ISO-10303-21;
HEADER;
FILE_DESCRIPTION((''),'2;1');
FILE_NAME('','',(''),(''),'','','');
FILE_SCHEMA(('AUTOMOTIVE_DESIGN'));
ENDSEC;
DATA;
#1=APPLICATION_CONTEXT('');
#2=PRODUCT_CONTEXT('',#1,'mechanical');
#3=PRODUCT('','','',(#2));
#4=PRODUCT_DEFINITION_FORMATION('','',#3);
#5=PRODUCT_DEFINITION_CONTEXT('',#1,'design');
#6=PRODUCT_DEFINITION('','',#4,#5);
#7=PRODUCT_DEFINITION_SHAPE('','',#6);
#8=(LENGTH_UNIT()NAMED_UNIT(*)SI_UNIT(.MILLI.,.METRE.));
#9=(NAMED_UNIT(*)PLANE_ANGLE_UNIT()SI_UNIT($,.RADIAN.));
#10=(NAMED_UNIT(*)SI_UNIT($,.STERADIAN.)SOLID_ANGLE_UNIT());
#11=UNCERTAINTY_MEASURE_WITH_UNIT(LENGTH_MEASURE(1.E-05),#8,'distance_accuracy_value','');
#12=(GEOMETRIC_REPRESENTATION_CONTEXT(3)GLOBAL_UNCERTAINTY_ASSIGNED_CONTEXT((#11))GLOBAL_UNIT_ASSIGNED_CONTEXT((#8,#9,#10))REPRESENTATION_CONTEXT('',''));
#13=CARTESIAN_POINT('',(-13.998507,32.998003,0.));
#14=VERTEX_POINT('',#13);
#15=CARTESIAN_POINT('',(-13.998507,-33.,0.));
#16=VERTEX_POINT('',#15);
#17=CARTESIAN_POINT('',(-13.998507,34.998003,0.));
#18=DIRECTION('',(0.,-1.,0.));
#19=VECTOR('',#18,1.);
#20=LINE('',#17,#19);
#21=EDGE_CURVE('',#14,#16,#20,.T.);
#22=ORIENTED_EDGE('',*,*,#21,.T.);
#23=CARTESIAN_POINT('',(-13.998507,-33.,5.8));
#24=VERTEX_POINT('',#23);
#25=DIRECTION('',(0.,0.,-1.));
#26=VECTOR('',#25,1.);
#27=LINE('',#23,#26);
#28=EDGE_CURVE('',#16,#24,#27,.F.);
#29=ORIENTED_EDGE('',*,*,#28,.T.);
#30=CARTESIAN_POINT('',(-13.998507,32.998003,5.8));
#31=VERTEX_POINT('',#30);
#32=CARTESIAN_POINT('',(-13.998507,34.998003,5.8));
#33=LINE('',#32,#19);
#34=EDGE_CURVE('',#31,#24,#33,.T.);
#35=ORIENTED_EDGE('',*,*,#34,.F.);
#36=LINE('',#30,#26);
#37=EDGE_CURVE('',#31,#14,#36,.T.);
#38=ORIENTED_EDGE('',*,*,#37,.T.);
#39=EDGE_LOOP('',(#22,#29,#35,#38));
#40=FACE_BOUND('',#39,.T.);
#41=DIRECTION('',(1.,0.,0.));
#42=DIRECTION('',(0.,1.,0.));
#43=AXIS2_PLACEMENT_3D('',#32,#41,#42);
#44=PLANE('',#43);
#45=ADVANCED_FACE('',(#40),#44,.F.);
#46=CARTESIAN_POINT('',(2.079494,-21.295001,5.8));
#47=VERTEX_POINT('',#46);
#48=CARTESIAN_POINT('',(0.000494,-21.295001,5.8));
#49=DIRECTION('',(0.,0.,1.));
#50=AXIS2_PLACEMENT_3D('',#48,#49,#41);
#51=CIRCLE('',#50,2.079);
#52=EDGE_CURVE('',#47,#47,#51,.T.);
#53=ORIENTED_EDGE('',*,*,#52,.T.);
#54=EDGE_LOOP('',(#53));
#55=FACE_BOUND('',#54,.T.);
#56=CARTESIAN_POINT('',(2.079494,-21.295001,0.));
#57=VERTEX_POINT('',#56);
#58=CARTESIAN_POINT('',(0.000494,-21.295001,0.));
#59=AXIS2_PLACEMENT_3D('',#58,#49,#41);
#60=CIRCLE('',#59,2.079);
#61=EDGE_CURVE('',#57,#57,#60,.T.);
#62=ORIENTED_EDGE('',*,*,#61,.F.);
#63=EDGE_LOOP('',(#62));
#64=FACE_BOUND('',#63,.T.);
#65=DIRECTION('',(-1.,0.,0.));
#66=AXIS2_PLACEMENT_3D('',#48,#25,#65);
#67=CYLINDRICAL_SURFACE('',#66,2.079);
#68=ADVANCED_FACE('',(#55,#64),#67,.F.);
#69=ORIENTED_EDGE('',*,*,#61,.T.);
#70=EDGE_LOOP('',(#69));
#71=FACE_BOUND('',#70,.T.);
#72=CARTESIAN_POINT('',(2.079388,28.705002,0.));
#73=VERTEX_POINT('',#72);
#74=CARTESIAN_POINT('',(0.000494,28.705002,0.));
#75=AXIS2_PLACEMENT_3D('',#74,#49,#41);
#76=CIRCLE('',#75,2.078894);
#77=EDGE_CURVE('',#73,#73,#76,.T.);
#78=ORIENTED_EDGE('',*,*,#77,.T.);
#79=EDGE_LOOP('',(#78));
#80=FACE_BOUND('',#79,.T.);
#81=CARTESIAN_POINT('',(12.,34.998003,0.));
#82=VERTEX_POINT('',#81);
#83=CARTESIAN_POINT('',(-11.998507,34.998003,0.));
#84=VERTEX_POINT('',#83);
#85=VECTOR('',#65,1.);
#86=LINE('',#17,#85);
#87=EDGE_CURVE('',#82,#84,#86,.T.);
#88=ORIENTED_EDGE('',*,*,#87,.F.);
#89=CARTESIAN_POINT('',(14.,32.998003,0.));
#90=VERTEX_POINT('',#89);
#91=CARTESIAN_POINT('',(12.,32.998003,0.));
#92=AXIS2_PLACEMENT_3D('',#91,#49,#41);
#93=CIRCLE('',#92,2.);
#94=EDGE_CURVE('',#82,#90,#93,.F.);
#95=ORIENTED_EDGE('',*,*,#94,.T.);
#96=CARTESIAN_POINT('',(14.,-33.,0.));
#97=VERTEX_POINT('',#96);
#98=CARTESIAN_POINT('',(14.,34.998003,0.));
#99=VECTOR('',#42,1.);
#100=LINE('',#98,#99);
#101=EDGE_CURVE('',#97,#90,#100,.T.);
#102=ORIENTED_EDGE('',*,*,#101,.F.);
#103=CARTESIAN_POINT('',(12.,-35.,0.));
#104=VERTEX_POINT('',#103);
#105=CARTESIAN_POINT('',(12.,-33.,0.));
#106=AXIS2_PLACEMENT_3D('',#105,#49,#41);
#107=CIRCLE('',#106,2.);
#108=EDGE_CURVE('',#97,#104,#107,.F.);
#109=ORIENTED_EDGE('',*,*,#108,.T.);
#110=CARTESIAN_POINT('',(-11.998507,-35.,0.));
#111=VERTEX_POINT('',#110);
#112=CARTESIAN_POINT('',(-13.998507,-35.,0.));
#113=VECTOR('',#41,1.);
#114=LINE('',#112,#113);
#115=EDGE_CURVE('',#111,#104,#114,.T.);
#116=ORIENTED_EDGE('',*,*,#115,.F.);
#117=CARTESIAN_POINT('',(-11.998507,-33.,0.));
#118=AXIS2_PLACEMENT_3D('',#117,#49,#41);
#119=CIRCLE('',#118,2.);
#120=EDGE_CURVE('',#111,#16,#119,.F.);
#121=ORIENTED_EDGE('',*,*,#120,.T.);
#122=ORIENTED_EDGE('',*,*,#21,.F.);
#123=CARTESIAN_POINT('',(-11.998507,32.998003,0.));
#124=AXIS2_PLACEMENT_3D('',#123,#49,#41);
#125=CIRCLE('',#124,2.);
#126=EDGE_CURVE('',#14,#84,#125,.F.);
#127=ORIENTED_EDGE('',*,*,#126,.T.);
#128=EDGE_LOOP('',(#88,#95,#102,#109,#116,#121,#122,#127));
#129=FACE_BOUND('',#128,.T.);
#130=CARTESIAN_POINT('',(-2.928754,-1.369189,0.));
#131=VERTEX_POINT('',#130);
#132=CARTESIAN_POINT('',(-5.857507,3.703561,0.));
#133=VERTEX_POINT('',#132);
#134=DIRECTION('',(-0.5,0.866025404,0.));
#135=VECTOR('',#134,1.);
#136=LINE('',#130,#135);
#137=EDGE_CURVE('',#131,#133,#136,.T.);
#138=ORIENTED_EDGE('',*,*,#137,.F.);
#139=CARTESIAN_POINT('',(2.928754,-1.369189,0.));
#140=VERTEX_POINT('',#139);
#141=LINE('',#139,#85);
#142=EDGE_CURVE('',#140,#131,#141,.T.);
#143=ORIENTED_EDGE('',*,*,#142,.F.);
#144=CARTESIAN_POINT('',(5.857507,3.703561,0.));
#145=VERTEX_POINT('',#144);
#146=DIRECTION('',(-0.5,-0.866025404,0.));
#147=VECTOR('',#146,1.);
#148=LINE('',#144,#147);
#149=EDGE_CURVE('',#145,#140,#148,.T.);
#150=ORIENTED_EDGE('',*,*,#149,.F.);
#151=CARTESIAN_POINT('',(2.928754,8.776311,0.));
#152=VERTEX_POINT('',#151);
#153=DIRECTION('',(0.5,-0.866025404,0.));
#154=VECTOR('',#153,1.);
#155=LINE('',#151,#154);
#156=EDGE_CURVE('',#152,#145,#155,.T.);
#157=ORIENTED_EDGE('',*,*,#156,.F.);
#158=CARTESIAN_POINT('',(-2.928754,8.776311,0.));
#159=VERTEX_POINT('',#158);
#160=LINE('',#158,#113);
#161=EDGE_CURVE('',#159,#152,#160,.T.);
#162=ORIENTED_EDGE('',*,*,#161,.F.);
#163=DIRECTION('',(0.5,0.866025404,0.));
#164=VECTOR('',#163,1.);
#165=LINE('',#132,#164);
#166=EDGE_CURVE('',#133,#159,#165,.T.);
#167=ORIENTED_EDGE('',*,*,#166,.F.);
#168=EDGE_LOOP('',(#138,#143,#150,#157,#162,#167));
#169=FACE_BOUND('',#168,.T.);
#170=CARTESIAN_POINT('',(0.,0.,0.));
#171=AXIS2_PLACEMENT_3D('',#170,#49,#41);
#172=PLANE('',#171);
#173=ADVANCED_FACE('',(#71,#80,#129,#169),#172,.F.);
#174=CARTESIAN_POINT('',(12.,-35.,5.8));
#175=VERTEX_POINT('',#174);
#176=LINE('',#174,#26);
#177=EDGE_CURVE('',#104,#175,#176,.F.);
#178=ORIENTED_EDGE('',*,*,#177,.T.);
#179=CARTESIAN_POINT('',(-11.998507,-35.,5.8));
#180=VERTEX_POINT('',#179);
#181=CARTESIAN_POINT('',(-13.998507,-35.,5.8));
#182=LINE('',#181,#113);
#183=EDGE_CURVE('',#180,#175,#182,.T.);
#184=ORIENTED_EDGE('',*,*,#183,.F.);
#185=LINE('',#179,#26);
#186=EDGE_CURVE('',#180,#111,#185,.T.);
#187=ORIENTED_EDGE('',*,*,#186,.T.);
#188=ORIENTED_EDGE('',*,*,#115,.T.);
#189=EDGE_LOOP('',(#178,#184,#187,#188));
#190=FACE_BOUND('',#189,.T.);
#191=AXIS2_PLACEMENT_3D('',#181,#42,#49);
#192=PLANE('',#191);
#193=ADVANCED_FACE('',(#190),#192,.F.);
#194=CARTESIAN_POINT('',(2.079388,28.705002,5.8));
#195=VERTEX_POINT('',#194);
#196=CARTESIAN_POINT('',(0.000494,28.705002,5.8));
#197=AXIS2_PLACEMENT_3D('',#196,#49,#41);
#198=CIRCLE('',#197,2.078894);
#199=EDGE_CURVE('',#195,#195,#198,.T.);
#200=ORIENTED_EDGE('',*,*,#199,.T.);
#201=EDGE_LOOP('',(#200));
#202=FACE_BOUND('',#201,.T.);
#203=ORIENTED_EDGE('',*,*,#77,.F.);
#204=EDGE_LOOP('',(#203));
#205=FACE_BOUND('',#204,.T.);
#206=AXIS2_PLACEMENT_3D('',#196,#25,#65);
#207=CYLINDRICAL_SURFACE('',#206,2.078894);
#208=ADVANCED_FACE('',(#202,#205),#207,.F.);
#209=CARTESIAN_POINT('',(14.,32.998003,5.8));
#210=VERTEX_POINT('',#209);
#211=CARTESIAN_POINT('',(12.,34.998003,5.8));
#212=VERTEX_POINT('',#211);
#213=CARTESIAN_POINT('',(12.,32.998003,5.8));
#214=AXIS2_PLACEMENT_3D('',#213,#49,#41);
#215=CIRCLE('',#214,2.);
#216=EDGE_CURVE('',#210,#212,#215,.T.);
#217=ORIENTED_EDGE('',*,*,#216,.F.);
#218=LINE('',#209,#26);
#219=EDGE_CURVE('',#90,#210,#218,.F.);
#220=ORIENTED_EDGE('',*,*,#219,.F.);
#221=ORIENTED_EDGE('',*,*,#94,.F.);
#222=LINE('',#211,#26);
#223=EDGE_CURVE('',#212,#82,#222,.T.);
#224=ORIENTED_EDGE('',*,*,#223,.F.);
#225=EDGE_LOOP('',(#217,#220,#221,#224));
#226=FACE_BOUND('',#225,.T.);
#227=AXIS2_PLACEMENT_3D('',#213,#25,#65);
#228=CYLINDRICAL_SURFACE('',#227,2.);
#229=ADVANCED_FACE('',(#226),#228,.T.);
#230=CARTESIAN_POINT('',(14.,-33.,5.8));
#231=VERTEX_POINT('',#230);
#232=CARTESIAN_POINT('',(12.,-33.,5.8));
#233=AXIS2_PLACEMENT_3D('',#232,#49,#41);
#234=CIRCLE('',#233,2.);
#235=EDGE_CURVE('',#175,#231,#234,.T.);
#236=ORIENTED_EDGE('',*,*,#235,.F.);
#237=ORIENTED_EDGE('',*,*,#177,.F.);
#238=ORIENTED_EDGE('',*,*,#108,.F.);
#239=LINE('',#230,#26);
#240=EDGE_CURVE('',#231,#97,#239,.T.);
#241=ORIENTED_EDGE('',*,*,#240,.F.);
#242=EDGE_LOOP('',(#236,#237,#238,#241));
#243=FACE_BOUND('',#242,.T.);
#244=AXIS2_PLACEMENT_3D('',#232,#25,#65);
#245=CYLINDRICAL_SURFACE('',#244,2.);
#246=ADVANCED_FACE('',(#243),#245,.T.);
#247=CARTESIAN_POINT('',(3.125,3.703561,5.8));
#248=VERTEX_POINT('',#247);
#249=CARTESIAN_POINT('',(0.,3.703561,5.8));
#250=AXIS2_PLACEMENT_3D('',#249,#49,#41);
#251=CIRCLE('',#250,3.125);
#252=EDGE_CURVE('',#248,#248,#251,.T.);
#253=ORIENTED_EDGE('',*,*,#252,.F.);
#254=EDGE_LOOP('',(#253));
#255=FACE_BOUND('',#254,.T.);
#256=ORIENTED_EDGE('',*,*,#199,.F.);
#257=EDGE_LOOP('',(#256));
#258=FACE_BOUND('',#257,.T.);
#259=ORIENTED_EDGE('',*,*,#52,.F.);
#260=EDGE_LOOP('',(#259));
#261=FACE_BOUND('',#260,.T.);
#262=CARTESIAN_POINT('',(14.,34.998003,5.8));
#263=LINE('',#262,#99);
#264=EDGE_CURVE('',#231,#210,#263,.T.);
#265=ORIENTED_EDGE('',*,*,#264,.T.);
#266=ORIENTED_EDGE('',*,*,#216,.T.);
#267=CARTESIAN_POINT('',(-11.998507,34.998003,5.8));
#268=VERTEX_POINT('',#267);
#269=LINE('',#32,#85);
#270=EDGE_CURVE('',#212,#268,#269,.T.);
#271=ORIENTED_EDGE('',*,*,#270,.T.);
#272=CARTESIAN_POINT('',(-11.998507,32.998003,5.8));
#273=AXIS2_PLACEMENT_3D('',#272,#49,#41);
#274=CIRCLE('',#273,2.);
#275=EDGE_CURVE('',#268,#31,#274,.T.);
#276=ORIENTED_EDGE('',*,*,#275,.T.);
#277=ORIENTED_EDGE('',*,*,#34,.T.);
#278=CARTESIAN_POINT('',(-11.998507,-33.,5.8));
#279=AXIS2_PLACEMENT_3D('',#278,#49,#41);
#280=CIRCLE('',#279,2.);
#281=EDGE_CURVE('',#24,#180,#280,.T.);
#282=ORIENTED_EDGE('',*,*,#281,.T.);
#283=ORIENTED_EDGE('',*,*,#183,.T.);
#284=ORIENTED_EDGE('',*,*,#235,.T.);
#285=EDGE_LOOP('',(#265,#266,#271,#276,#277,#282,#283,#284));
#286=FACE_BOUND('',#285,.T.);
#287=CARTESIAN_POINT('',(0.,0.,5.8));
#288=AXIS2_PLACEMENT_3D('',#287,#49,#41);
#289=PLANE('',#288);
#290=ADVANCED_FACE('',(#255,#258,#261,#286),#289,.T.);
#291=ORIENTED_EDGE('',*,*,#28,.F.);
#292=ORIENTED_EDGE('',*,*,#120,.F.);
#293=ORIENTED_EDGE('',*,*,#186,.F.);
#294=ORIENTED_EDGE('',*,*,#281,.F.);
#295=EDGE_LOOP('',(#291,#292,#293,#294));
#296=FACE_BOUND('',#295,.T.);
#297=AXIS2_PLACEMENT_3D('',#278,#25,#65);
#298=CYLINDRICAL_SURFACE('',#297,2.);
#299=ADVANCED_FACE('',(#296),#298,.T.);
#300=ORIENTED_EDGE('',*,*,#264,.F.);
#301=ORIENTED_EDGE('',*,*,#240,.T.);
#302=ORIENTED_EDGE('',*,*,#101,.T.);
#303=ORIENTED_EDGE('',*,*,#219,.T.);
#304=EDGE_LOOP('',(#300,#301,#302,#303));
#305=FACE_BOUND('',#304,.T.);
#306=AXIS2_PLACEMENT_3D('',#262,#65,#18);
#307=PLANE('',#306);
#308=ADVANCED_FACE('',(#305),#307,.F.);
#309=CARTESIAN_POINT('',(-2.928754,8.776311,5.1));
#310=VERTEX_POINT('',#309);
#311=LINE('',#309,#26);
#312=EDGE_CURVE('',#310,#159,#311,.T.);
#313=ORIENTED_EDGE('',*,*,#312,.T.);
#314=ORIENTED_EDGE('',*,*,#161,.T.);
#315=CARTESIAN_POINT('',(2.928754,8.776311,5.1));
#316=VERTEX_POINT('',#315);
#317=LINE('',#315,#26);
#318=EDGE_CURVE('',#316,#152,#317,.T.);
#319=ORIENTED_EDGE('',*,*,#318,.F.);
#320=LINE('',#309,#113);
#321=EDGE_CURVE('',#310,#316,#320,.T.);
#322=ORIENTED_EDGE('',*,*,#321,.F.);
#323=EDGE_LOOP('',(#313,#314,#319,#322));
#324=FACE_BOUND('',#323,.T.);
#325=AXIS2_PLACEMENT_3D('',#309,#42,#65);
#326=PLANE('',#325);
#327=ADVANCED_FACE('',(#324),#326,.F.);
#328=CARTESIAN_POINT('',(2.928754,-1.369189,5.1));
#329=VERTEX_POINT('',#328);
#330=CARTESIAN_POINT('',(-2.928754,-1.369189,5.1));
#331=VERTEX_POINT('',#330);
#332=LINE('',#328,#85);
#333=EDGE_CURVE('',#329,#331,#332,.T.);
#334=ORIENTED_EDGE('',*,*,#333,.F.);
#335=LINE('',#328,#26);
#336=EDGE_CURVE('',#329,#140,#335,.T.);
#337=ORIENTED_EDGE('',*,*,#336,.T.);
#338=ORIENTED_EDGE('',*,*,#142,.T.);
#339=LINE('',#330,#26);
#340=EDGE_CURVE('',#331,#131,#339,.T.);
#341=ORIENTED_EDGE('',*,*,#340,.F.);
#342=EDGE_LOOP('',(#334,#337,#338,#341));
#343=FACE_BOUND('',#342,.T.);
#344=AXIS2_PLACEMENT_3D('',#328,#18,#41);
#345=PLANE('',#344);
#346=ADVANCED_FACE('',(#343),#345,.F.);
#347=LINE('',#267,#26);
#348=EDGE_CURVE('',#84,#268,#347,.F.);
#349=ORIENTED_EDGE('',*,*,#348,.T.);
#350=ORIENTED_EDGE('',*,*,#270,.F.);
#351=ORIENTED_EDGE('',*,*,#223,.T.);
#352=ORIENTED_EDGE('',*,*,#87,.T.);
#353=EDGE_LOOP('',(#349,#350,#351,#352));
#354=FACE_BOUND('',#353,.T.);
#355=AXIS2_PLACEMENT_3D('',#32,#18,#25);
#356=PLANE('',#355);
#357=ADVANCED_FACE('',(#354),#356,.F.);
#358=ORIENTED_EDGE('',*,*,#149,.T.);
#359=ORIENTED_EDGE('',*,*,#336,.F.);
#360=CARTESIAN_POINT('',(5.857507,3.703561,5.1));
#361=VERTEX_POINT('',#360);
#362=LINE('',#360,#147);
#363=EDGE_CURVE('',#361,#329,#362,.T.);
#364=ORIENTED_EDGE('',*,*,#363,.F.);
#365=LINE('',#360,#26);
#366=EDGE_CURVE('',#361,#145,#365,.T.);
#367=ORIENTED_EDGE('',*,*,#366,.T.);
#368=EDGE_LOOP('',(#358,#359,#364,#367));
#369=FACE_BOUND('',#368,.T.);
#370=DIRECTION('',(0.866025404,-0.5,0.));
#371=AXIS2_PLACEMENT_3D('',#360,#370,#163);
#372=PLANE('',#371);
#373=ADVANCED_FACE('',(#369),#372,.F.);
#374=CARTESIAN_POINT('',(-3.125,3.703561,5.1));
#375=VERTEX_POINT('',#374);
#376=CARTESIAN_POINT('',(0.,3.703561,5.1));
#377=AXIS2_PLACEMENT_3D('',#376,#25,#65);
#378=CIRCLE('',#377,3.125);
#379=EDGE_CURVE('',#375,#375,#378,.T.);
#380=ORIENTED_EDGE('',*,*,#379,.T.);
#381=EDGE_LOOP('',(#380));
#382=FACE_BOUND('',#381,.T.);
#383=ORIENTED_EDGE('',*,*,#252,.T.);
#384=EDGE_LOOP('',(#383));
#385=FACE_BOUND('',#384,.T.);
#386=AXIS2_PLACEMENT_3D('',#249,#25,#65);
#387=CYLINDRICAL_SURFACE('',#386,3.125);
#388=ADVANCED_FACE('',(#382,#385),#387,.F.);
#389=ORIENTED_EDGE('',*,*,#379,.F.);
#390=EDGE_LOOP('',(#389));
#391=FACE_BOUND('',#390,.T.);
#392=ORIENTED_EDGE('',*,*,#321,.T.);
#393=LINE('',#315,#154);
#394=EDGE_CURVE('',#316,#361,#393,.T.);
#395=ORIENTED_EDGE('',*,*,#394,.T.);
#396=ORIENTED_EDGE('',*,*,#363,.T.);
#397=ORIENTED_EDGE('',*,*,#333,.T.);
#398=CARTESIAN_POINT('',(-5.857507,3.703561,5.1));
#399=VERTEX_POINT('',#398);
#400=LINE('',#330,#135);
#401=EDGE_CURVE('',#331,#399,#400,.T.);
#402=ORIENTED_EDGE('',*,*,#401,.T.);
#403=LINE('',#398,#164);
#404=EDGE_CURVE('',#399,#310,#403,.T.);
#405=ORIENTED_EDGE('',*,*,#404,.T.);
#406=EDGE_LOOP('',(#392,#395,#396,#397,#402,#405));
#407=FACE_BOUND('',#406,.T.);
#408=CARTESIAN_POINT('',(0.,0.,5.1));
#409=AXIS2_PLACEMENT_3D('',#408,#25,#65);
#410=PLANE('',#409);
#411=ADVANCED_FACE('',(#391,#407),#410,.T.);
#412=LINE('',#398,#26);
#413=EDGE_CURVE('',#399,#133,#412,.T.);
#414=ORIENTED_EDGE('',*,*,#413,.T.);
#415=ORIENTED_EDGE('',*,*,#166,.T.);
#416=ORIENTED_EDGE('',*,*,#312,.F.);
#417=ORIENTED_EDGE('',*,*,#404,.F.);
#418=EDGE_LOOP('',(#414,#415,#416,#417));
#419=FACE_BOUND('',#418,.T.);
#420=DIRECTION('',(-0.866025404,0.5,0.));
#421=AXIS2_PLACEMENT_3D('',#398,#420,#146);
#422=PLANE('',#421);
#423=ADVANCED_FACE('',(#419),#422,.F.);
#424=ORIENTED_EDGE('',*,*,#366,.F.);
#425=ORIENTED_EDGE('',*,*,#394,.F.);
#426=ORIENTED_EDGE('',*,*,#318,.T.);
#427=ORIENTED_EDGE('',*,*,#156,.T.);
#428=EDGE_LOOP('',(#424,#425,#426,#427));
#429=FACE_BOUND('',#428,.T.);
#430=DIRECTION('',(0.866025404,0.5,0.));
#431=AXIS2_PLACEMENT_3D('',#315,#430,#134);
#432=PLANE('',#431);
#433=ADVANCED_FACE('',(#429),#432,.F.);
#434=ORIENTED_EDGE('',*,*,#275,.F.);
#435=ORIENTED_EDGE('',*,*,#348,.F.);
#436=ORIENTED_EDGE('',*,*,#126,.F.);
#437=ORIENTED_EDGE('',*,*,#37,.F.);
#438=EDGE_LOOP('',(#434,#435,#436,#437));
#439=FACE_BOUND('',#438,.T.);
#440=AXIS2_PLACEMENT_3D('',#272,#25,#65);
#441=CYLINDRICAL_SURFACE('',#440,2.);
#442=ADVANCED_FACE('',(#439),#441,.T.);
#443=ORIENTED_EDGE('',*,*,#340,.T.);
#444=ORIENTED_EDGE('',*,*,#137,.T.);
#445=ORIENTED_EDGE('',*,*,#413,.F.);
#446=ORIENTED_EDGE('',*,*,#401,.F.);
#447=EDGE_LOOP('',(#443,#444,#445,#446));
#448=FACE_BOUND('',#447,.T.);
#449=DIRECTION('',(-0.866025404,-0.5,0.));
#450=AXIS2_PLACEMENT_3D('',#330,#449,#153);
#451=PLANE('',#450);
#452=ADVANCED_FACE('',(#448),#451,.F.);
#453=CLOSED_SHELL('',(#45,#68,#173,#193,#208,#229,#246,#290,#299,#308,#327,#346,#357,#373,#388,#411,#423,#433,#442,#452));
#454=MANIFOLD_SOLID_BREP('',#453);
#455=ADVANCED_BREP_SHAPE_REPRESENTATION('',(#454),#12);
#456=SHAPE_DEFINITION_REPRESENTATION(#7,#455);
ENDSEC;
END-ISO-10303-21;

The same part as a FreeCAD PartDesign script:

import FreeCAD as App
import Part
import Sketcher

V = App.Vector
Q = App.Units.Quantity


def edges_at(feature, points):
    """Names of the edges that pass closest to the given points."""
    edges = feature.Shape.Edges
    near = lambda p: min(range(len(edges)), key=lambda i: edges[i].distToShape(Part.Vertex(*p))[0])
    return sorted({f"Edge{near(p) + 1}" for p in points})


def add_polygon(sketch, points):
    """Adds a closed chain of lines whose ends are joined by coincident constraints."""
    first, n = sketch.GeometryCount, len(points)
    for a, b in zip(points, points[1:] + points[:1]):
        sketch.addGeometry(Part.LineSegment(App.Vector(*a, 0), App.Vector(*b, 0)), False)
    for i in range(n):
        sketch.addConstraint(Sketcher.Constraint("Coincident", first + i, 2, first + (i + 1) % n, 1))

doc = App.newDocument("Part")
body = doc.addObject("PartDesign::Body", "Body")

sketch1 = body.newObject("Sketcher::SketchObject", "Sketch")
sketch1.AttachmentSupport = (doc.getObject("XY_Plane"), [""])
sketch1.MapMode = "FlatFace"
add_polygon(sketch1, [(-13.998507, 34.998003), (-13.998507, -35), (14, -35), (14, 34.998003)])
sketch1.addGeometry(Part.Circle(V(0.000494, -21.295001, 0), V(0, 0, 1), 2.079), False)
sketch1.addGeometry(Part.Circle(V(0, 3.703561, 0), V(0, 0, 1), 3.125), False)
sketch1.addGeometry(Part.Circle(V(0.000494, 28.705002, 0), V(0, 0, 1), 2.078894), False)
sketch1.addConstraint([
    Sketcher.Constraint("Vertical", 0),
    Sketcher.Constraint("Horizontal", 1),
    Sketcher.Constraint("Vertical", 2),
    Sketcher.Constraint("Horizontal", 3),
    Sketcher.Constraint("PointOnObject", 5, 3, -2),
    Sketcher.Constraint("Vertical", 4, 3, 6, 3),
    Sketcher.Constraint("Diameter", 5, 6.25),
    Sketcher.Constraint("Diameter", 4, 4.158),
    Sketcher.Constraint("DistanceY", 0, 2, -1, 1, 35.0),
    Sketcher.Constraint("DistanceX", -1, 1, 1, 2, 14.0),
    Sketcher.Constraint("Diameter", 6, 4.157788),
    Sketcher.Constraint("DistanceY", 4, 3, -1, 1, 21.295001),
    Sketcher.Constraint("DistanceY", -1, 1, 6, 3, 28.705002),
    Sketcher.Constraint("DistanceX", 0, 2, 4, 3, 13.999001),
    Sketcher.Constraint("DistanceY", 6, 3, 2, 2, 6.293001),
    Sketcher.Constraint("DistanceX", 1, 1, 1, 2, 27.998507),
    Sketcher.Constraint("DistanceY", -1, 1, 5, 3, 3.703561),
])
pad1 = body.newObject("PartDesign::Pad", "Pad")
pad1.Profile = sketch1
pad1.Length = 5.8

sketch2 = body.newObject("Sketcher::SketchObject", "Sketch001")
sketch2.AttachmentSupport = (doc.getObject("XY_Plane"), [""])
sketch2.MapMode = "FlatFace"
add_polygon(sketch2, [(-2.928754, 8.776311), (2.928754, 8.776311), (5.857507, 3.703561), (2.928754, -1.369189), (-2.928754, -1.369189), (-5.857507, 3.703561)])
sketch2.addConstraint([
    Sketcher.Constraint("Horizontal", 0),
    Sketcher.Constraint("Horizontal", 3),
    Sketcher.Constraint("Symmetric", 1, 2, 4, 2, -2),
    Sketcher.Constraint("Parallel", 1, 4),
    Sketcher.Constraint("Parallel", 2, 5),
    Sketcher.Constraint("Vertical", 0, 2, 2, 2),
    Sketcher.Constraint("Vertical", 3, 2, 5, 2),
    Sketcher.Constraint("Angle", 1, Q("-60 deg")),
    Sketcher.Constraint("DistanceY", 2, 2, 0, 2, 10.1455),
    Sketcher.Constraint("DistanceX", 0, 1, 0, 2, 5.857507),
    Sketcher.Constraint("DistanceY", -1, 1, 0, 2, 8.776311),
])
pocket1 = body.newObject("PartDesign::Pocket", "Pocket")
pocket1.Profile = sketch2
pocket1.Length = 5.1
pocket1.Reversed = True
doc.recompute()

fillet = body.newObject("PartDesign::Fillet", "Fillet")
fillet.Base = (pocket1, edges_at(pocket1, [
    (-13.999, 34.998, 2.9),
    (14, 34.998, 2.9),
    (14, -35, 2.9),
    (-13.999, -35, 2.9),
]))
fillet.Radius = 2

doc.recompute()
